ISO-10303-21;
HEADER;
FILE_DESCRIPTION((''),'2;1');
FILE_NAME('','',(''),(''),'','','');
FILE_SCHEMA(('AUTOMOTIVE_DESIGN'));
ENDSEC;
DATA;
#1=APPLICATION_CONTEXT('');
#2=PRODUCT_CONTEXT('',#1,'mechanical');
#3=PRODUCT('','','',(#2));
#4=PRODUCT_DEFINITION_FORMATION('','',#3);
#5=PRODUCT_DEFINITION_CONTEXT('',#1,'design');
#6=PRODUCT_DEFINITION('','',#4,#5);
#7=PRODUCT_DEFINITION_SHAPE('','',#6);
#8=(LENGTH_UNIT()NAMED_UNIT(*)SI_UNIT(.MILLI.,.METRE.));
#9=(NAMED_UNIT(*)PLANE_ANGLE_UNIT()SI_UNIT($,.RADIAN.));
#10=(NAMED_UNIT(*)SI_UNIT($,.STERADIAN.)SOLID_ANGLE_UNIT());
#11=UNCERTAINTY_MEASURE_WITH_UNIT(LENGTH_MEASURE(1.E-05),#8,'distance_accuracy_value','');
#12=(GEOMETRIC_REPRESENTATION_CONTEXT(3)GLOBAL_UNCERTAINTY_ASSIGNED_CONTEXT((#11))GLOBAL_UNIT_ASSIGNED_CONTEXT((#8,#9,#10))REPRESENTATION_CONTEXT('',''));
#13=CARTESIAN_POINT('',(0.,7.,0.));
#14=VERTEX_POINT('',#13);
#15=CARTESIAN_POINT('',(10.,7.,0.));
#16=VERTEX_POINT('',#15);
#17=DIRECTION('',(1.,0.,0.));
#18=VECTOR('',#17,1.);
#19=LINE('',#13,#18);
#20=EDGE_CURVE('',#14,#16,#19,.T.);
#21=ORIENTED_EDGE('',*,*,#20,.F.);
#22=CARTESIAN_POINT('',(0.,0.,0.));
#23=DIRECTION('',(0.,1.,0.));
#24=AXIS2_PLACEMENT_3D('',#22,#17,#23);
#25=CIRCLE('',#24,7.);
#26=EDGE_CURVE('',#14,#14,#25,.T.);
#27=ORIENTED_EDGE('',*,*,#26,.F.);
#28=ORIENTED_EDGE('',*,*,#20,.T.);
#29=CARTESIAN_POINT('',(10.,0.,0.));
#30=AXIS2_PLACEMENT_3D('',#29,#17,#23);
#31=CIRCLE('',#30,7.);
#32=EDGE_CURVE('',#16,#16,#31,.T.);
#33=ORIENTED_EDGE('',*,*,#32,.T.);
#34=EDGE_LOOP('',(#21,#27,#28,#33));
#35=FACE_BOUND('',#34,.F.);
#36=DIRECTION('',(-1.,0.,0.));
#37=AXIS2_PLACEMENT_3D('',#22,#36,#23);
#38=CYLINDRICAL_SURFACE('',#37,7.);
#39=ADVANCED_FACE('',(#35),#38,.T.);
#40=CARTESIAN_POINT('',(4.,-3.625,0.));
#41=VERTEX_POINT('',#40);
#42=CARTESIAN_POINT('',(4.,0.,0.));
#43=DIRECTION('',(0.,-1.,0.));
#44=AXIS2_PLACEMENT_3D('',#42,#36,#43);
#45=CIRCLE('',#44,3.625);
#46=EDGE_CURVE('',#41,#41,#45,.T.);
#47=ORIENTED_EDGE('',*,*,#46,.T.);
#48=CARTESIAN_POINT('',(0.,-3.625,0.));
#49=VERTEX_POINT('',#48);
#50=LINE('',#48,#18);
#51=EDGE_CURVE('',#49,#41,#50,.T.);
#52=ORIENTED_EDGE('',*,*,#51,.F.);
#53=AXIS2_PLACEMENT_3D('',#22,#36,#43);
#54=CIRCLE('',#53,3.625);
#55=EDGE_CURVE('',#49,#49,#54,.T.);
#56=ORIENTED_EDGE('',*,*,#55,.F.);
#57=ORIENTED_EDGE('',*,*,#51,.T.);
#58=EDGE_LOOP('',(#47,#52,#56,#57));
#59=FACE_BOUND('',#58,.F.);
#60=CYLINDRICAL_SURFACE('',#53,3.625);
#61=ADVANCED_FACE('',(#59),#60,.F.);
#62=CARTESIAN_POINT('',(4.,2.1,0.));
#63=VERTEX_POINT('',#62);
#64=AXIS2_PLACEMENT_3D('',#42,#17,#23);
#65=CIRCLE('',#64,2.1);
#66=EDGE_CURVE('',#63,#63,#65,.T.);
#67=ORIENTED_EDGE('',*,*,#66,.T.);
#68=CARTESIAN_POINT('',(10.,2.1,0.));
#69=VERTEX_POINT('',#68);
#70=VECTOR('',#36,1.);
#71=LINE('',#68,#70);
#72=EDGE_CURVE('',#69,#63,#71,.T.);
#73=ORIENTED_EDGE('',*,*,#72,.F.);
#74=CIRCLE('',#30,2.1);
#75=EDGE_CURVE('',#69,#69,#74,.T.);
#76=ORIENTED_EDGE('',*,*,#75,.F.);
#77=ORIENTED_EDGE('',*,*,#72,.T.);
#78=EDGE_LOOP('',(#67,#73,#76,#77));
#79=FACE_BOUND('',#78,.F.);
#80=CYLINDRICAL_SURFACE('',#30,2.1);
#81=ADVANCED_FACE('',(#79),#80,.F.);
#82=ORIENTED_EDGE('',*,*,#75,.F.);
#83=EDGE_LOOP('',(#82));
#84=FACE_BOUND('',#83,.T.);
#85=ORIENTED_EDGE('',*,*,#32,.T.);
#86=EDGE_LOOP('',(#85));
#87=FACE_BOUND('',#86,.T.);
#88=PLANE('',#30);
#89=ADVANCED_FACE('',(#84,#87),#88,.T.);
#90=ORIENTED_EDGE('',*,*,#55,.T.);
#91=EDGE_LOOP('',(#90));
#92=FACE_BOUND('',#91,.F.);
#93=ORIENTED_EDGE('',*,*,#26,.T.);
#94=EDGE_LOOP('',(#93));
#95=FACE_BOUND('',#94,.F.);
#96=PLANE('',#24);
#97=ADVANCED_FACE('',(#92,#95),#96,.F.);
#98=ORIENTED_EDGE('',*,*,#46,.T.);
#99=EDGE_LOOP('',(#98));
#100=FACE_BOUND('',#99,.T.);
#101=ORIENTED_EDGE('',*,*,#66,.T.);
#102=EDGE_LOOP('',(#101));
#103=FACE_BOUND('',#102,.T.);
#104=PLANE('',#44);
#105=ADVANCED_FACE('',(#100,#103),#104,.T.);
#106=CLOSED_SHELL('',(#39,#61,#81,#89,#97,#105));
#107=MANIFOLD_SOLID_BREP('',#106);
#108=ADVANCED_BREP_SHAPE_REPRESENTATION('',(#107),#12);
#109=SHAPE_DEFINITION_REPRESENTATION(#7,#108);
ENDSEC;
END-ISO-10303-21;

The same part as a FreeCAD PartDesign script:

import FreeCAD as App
import Part
import Sketcher

V = App.Vector

doc = App.newDocument("Part")
body = doc.addObject("PartDesign::Body", "Body")

sketch1 = doc.addObject("Sketcher::SketchObject", "Sketch")
body.addObject(sketch1)
sketch1.AttachmentSupport = (doc.YZ_Plane, [""])
sketch1.MapMode = "FlatFace"
sketch1.addGeometry(Part.Circle(V(0, 0, 0), V(0, 0, 1), 7), False)
sketch1.addConstraint([
    Sketcher.Constraint("Coincident", 0, 3, -1, 1),
    Sketcher.Constraint("Diameter", 0, 14.0),
])
pad1 = doc.addObject("PartDesign::Pad", "Pad")
body.addObject(pad1)
pad1.Profile = sketch1
pad1.Length = 10

sketch2 = doc.addObject("Sketcher::SketchObject", "Sketch001")
body.addObject(sketch2)
sketch2.AttachmentSupport = (doc.YZ_Plane, [""])
sketch2.MapMode = "FlatFace"
sketch2.addGeometry(Part.Circle(V(0, 0, 0), V(0, 0, 1), 3.625), False)
sketch2.addConstraint([
    Sketcher.Constraint("Coincident", 0, 3, -1, 1),
    Sketcher.Constraint("Diameter", 0, 7.25),
])
pocket1 = doc.addObject("PartDesign::Pocket", "Pocket")
body.addObject(pocket1)
pocket1.Profile = sketch2
pocket1.Length = 4
pocket1.Reversed = True

sketch3 = doc.addObject("Sketcher::SketchObject", "Sketch002")
body.addObject(sketch3)
sketch3.AttachmentSupport = (doc.YZ_Plane, [""])
sketch3.MapMode = "FlatFace"
sketch3.AttachmentOffset = App.Placement(V(0, 0, 10), App.Rotation())
sketch3.addGeometry(Part.Circle(V(0, 0, 0), V(0, 0, 1), 2.1), False)
sketch3.addConstraint([
    Sketcher.Constraint("Coincident", 0, 3, -1, 1),
    Sketcher.Constraint("Diameter", 0, 4.2),
])
pocket2 = doc.addObject("PartDesign::Pocket", "Pocket001")
body.addObject(pocket2)
pocket2.Profile = sketch3
pocket2.Type = "ThroughAll"

doc.recompute()
